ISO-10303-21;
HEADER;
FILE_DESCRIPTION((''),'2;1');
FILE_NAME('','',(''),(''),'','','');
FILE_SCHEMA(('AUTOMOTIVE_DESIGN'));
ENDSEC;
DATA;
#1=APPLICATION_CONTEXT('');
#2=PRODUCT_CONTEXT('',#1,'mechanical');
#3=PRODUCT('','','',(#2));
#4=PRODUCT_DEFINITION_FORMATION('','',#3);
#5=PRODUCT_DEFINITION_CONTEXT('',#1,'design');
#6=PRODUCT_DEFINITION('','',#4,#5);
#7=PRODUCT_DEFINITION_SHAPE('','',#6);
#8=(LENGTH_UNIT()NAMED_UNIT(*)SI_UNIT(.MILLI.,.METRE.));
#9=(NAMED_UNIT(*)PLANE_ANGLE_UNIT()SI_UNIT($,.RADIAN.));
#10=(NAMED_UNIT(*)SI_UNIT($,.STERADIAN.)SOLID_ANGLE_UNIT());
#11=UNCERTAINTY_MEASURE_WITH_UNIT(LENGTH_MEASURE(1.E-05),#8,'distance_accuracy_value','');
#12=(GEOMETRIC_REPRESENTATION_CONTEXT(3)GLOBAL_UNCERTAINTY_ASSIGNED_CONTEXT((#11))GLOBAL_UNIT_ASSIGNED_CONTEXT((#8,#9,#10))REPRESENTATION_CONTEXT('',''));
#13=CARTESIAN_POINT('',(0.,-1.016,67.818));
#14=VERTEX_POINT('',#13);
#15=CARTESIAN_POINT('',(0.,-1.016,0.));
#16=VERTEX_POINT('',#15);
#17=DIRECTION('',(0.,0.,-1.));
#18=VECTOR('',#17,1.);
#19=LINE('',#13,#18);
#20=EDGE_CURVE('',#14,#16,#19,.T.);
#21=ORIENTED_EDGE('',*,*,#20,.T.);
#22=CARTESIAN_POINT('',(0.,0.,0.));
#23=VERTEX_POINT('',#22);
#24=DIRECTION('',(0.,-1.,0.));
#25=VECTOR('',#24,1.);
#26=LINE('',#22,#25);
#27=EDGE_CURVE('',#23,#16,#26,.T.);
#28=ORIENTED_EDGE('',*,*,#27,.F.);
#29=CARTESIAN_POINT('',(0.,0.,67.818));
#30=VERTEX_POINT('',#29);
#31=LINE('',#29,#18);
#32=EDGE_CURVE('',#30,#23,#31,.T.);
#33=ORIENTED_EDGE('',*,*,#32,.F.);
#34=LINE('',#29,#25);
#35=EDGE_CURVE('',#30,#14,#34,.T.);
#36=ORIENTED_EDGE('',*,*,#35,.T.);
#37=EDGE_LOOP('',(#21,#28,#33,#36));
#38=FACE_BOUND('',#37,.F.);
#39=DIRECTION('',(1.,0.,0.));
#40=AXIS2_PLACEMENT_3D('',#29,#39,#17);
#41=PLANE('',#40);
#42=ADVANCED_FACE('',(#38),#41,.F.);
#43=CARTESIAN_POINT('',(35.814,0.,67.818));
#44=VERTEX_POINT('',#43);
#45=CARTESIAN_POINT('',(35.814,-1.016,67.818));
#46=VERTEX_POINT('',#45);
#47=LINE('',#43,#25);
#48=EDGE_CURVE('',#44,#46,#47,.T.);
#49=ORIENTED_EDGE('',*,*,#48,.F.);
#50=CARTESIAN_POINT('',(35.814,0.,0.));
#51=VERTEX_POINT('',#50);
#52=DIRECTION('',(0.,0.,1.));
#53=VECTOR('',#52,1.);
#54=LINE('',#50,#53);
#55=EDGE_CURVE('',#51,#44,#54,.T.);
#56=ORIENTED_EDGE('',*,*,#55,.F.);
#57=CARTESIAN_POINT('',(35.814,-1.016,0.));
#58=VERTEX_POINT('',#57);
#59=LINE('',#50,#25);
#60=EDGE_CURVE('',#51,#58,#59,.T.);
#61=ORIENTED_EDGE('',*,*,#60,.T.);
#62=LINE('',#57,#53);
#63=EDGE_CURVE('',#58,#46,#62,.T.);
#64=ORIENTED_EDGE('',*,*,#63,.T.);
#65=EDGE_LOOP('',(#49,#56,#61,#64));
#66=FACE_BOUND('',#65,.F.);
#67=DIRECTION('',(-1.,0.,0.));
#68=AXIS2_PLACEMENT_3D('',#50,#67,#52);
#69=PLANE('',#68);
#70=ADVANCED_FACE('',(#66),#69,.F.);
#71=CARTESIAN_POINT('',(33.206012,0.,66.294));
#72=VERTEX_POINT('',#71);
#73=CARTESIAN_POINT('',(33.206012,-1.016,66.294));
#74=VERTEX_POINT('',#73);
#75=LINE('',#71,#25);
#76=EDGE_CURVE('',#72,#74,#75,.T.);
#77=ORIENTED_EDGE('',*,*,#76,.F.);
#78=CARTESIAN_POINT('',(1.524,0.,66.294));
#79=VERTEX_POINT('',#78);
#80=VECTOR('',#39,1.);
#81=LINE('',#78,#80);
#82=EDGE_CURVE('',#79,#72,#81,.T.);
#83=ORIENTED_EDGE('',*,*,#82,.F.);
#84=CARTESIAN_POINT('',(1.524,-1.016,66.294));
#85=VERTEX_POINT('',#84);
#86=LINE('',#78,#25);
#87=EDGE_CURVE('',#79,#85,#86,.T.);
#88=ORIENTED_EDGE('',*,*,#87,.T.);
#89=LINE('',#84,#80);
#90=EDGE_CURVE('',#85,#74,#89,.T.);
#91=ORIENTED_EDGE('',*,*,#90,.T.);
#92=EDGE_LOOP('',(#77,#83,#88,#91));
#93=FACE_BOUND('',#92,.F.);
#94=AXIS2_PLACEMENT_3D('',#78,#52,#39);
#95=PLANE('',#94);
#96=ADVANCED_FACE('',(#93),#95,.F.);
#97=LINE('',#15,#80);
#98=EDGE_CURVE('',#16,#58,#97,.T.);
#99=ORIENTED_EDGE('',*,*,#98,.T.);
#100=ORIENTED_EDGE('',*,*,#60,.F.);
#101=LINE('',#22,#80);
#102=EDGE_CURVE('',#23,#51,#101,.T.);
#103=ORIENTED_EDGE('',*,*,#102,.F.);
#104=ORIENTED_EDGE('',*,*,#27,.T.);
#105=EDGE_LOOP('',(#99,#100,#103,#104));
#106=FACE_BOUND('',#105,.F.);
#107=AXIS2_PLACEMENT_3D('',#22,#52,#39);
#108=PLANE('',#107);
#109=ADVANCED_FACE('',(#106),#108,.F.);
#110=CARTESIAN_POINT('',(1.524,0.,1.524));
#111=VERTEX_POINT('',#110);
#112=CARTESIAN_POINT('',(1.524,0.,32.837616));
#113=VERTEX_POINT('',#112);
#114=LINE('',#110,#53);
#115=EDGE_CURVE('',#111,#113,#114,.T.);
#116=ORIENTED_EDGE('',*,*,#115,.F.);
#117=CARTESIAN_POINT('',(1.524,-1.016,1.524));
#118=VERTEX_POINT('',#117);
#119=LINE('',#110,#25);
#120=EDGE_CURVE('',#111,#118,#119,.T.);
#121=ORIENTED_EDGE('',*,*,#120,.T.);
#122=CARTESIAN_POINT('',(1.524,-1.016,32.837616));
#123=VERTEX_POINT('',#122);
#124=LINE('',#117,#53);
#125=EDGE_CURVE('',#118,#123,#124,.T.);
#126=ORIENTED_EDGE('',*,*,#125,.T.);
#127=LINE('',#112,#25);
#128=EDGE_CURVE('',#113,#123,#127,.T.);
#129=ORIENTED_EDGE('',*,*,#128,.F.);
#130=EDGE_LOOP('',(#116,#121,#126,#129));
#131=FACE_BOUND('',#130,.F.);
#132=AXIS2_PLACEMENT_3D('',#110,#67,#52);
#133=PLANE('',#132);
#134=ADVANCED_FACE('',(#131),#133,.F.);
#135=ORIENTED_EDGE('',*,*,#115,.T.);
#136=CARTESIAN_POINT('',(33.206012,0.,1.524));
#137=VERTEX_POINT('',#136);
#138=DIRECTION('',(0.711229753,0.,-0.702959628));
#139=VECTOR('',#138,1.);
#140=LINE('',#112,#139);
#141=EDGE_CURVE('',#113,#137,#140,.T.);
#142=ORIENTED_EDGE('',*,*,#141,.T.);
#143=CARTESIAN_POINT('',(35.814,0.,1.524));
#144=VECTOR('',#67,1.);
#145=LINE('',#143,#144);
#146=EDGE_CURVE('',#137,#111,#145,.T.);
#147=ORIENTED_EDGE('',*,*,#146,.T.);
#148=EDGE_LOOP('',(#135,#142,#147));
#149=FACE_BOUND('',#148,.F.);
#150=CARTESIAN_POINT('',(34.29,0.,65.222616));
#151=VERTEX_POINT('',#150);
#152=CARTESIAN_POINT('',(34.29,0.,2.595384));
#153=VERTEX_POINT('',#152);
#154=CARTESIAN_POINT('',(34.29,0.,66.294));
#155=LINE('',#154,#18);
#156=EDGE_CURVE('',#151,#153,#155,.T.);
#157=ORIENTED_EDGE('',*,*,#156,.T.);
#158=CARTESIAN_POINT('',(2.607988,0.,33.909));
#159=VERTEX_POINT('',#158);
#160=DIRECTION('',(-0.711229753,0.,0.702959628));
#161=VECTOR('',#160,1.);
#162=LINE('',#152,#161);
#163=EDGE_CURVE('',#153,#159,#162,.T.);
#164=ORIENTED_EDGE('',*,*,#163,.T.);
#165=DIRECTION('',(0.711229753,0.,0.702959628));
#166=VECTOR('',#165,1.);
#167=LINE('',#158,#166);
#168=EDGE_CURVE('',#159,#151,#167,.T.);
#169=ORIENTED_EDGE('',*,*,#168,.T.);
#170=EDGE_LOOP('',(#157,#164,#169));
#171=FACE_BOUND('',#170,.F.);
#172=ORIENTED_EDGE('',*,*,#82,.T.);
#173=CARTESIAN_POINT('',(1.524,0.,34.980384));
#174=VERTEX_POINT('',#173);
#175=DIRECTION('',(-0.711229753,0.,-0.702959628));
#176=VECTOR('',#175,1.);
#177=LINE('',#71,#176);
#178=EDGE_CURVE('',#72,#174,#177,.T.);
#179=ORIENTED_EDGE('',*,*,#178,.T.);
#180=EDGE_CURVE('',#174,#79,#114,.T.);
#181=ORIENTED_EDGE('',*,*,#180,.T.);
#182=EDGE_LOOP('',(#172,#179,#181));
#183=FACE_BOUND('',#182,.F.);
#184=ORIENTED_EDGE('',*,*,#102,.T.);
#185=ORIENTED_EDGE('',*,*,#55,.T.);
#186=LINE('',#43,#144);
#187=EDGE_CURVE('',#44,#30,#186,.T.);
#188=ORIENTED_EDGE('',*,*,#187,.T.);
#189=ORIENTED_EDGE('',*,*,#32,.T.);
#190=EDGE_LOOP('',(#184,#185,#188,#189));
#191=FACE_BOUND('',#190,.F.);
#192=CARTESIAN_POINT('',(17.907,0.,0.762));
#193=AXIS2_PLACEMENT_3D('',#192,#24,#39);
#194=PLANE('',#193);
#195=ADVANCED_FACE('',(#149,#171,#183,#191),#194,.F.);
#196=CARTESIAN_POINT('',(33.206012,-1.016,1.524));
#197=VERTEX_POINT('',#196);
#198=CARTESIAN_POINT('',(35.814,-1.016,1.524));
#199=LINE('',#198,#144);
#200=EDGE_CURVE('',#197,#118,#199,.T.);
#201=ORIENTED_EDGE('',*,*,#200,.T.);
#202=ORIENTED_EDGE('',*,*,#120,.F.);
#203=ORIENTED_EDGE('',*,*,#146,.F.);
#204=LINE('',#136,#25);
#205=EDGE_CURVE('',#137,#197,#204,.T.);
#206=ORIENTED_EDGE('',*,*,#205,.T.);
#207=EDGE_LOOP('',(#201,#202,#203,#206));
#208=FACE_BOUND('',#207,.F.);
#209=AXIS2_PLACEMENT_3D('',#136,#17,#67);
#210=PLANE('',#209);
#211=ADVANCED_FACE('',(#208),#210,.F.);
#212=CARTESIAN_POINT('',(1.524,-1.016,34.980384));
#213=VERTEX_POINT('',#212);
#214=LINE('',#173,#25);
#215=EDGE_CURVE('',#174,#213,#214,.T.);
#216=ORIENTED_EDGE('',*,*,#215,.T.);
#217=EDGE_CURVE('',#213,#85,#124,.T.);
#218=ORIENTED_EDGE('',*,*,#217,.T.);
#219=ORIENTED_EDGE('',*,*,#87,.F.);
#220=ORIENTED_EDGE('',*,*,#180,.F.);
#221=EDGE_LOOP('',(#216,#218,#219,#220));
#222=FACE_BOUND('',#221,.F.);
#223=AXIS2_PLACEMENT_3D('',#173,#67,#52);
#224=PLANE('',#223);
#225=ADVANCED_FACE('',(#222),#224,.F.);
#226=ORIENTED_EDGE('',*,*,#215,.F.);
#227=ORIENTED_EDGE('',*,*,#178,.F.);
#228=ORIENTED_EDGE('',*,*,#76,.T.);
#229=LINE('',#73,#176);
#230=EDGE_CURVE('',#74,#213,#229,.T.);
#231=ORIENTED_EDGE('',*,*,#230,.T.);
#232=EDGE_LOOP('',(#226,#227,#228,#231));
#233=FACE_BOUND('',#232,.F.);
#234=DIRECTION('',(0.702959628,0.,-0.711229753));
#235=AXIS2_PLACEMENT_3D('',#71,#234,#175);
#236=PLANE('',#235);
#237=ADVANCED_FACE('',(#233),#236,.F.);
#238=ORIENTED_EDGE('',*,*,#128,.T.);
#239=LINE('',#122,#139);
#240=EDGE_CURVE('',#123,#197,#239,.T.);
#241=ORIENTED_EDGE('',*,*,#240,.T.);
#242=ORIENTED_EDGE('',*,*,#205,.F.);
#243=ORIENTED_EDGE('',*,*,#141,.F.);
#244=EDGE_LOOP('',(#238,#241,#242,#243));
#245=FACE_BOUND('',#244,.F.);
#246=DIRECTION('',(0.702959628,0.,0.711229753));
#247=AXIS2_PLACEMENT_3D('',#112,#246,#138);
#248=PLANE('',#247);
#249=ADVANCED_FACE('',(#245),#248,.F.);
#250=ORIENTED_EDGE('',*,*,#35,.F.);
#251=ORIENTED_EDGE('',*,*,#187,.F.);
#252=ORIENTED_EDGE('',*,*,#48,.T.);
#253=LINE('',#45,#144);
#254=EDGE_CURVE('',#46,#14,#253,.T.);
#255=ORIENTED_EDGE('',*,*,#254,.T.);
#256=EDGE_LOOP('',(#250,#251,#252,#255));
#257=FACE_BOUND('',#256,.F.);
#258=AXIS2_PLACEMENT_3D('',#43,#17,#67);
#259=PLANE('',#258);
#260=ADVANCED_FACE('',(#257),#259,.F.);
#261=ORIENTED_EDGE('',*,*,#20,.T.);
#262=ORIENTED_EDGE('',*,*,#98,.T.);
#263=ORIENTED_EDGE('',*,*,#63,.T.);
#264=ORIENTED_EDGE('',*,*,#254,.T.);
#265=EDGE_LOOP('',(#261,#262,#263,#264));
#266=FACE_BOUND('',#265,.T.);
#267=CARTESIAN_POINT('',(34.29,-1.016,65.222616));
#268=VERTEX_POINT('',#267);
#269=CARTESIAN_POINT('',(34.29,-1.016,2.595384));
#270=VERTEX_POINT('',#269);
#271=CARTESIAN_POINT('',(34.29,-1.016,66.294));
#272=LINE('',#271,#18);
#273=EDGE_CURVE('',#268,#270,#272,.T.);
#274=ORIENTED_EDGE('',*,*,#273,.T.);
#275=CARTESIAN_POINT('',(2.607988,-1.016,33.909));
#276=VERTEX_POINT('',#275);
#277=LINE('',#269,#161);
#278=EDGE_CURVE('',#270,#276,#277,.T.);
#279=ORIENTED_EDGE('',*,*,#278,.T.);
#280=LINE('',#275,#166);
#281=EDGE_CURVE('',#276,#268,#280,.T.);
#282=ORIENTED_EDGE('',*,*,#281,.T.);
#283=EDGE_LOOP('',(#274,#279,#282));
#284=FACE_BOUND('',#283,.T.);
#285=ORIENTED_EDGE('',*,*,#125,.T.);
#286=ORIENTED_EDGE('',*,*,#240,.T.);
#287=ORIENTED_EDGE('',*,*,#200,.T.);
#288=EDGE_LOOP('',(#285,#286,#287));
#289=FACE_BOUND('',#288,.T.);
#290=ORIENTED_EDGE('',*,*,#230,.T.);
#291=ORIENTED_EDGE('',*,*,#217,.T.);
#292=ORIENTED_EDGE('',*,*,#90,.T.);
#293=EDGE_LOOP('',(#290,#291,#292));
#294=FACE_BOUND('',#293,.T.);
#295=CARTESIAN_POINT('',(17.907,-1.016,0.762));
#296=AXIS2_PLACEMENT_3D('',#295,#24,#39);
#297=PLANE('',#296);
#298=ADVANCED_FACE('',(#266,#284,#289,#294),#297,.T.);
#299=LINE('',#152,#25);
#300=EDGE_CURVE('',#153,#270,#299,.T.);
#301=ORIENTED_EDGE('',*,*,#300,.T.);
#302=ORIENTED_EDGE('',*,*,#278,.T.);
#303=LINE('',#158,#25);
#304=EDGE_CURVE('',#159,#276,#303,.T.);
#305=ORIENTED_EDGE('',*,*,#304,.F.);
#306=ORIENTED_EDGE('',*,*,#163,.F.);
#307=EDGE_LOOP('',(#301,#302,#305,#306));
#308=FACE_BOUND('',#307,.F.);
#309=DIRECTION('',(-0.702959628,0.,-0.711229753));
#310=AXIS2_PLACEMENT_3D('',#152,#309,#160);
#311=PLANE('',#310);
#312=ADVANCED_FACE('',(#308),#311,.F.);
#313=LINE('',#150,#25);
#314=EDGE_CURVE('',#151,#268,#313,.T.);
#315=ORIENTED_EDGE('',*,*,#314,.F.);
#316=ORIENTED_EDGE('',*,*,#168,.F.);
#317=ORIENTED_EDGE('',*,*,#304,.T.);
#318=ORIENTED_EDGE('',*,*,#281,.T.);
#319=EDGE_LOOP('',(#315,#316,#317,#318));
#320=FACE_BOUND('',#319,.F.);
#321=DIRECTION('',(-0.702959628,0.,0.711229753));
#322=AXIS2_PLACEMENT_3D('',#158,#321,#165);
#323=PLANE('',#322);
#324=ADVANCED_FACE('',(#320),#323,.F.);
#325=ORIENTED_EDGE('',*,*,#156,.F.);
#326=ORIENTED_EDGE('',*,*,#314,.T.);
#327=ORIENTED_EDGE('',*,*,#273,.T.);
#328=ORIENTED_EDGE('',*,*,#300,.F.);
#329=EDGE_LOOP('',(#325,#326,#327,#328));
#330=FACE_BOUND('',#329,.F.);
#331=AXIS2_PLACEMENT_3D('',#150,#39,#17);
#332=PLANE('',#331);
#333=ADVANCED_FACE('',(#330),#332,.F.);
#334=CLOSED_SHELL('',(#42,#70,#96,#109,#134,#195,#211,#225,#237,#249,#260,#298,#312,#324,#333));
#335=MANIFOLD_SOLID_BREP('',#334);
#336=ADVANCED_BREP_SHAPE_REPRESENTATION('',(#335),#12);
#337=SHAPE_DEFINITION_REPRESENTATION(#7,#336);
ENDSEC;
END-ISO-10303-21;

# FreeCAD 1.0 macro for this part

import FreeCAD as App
import Part
import Sketcher
from FreeCAD import Vector
Q = App.Units.Quantity

doc = App.newDocument("Part")
body = doc.addObject("PartDesign::Body", "Body")

sketch1 = doc.addObject("Sketcher::SketchObject", "Sketch")
body.addObject(sketch1)
sketch1.AttachmentSupport = (doc.XZ_Plane, [""])
sketch1.MapMode = "FlatFace"
sketch1.addGeometry([
    Part.LineSegment(Vector(0, 0, 0), Vector(36, 0, 0)),
    Part.LineSegment(Vector(36, 0, 0), Vector(36, 68, 0)),
    Part.LineSegment(Vector(36, 68, 0), Vector(0, 68, 0)),
    Part.LineSegment(Vector(0, 68, 0), Vector(0, 0, 0)),
    Part.LineSegment(Vector(34, 65, 0), Vector(34, 3, 0)),
    Part.LineSegment(Vector(34, 3, 0), Vector(3, 34, 0)),
    Part.LineSegment(Vector(3, 34, 0), Vector(34, 65, 0)),
    Part.LineSegment(Vector(33, 2, 0), Vector(2, 2, 0)),
    Part.LineSegment(Vector(2, 2, 0), Vector(2, 33, 0)),
    Part.LineSegment(Vector(2, 33, 0), Vector(33, 2, 0)),
    Part.LineSegment(Vector(2, 35, 0), Vector(2, 66, 0)),
    Part.LineSegment(Vector(2, 66, 0), Vector(33, 66, 0)),
    Part.LineSegment(Vector(33, 66, 0), Vector(2, 35, 0)),
], False)
sketch1.addConstraint([
    Sketcher.Constraint("Coincident", 0, 2, 1, 1),
    Sketcher.Constraint("Coincident", 1, 2, 2, 1),
    Sketcher.Constraint("Coincident", 2, 2, 3, 1),
    Sketcher.Constraint("Coincident", 3, 2, 0, 1),
    Sketcher.Constraint("Coincident", 4, 2, 5, 1),
    Sketcher.Constraint("Coincident", 5, 2, 6, 1),
    Sketcher.Constraint("Coincident", 6, 2, 4, 1),
    Sketcher.Constraint("Coincident", 7, 2, 8, 1),
    Sketcher.Constraint("Coincident", 8, 2, 9, 1),
    Sketcher.Constraint("Coincident", 9, 2, 7, 1),
    Sketcher.Constraint("Coincident", 10, 2, 11, 1),
    Sketcher.Constraint("Coincident", 11, 2, 12, 1),
    Sketcher.Constraint("Coincident", 12, 2, 10, 1),
    Sketcher.Constraint("Horizontal", 0),
    Sketcher.Constraint("Vertical", 1),
    Sketcher.Constraint("Horizontal", 2),
    Sketcher.Constraint("Vertical", 3),
    Sketcher.Constraint("Vertical", 4),
    Sketcher.Constraint("Horizontal", 7),
    Sketcher.Constraint("Vertical", 8),
    Sketcher.Constraint("Vertical", 10),
    Sketcher.Constraint("Horizontal", 11),
    Sketcher.Constraint("Coincident", 3, 2, -1, 1),
    Sketcher.Constraint("Parallel", 5, 9),
    Sketcher.Constraint("Parallel", 6, 12),
    Sketcher.Constraint("Vertical", 8, 2, 10, 2),
    Sketcher.Constraint("Vertical", 9, 2, 11, 2),
    Sketcher.Constraint("Equal", 8, 10),
    Sketcher.Constraint("Equal", 6, 9),
    Sketcher.Constraint("DistanceX", 0, 1, 0, 2, Q("1.41 in")),
    Sketcher.Constraint("DistanceY", 1, 1, 1, 2, Q("2.67 in")),
    Sketcher.Constraint("DistanceX", -1, 1, 4, 2, Q("1.35 in")),
    Sketcher.Constraint("DistanceX", -1, 1, 7, 2, Q("0.06 in")),
    Sketcher.Constraint("DistanceY", -1, 1, 7, 2, Q("0.06 in")),
    Sketcher.Constraint("DistanceY", -1, 1, 10, 2, Q("2.61 in")),
    Sketcher.Constraint("DistanceY", -1, 1, 5, 2, Q("1.335 in")),
    Sketcher.Constraint("DistanceX", 7, 2, 7, 1, Q("31.682012 mm")),
    Sketcher.Constraint("DistanceY", 4, 2, 4, 1, Q("62.627232 mm")),
])
pad1 = doc.addObject("PartDesign::Pad", "Pad")
body.addObject(pad1)
pad1.Profile = sketch1
pad1.Length = Q("0.04 in")

doc.recompute()
